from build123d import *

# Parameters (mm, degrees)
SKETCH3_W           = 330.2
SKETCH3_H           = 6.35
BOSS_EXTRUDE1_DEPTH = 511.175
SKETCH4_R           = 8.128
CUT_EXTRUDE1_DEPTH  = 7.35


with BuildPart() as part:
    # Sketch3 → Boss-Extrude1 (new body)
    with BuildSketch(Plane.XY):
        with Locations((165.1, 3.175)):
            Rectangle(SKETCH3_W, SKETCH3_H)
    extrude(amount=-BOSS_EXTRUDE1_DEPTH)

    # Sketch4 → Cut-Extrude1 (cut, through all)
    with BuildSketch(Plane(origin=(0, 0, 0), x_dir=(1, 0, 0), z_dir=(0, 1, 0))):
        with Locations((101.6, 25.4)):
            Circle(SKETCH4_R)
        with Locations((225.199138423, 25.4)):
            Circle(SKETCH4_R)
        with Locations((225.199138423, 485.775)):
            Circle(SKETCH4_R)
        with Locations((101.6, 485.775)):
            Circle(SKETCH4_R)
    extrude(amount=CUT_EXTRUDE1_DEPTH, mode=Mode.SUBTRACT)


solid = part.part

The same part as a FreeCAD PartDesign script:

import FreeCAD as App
import Part
import Sketcher
Q = App.Units.Quantity


def add_polygon(sketch, points):
    """Adds a closed chain of lines whose ends are joined by coincident constraints."""
    first, n = sketch.GeometryCount, len(points)
    for a, b in zip(points, points[1:] + points[:1]):
        sketch.addGeometry(Part.LineSegment(App.Vector(*a, 0), App.Vector(*b, 0)), False)
    for i in range(n):
        sketch.addConstraint(Sketcher.Constraint("Coincident", first + i, 2, first + (i + 1) % n, 1))

doc = App.newDocument("Part")
body = doc.addObject("PartDesign::Body", "Body")

# Sketch on XY plane
sketch1 = body.newObject("Sketcher::SketchObject", "Sketch")
sketch1.AttachmentSupport = (doc.getObject("XY_Plane"), [""])
sketch1.MapMode = "FlatFace"
add_polygon(sketch1, [(0, 6), (0, 0), (330, 0), (330, 6)])  # lines 0-3
sketch1.addConstraint(Sketcher.Constraint("Vertical", 0))
sketch1.addConstraint(Sketcher.Constraint("Horizontal", 1))
sketch1.addConstraint(Sketcher.Constraint("Vertical", 2))
sketch1.addConstraint(Sketcher.Constraint("Horizontal", 3))
sketch1.addConstraint(Sketcher.Constraint("Coincident", 0, 2, -1, 1))
sketch1.addConstraint(Sketcher.Constraint("DistanceX", 1, 1, 1, 2, Q("13 in")))
sketch1.addConstraint(Sketcher.Constraint("DistanceY", 0, 2, 0, 1, Q("0.25 in")))
pad1 = body.newObject("PartDesign::Pad", "Pad")
pad1.Profile = sketch1
pad1.Length = Q("20.125 in")
pad1.Reversed = True

# Sketch on XZ plane
sketch2 = body.newObject("Sketcher::SketchObject", "Sketch001")
sketch2.AttachmentSupport = (doc.getObject("XZ_Plane"), [""])
sketch2.MapMode = "FlatFace"
sketch2.addGeometry(Part.Circle(App.Vector(102, -25, 0), App.Vector(0, 0, 1), 8), False)
sketch2.addGeometry(Part.Circle(App.Vector(225, -25, 0), App.Vector(0, 0, 1), 8), False)
sketch2.addGeometry(Part.Circle(App.Vector(225, -486, 0), App.Vector(0, 0, 1), 8), False)
sketch2.addGeometry(Part.Circle(App.Vector(102, -486, 0), App.Vector(0, 0, 1), 8), False)
sketch2.addConstraint(Sketcher.Constraint("Equal", 0, 1))
sketch2.addConstraint(Sketcher.Constraint("Equal", 1, 2))
sketch2.addConstraint(Sketcher.Constraint("Equal", 2, 3))
sketch2.addConstraint(Sketcher.Constraint("Horizontal", 0, 3, 1, 3))
sketch2.addConstraint(Sketcher.Constraint("Horizontal", 2, 3, 3, 3))
sketch2.addConstraint(Sketcher.Constraint("Vertical", 1, 3, 2, 3))
sketch2.addConstraint(Sketcher.Constraint("Vertical", 0, 3, 3, 3))
sketch2.addConstraint(Sketcher.Constraint("Diameter", 0, Q("0.64 in")))
sketch2.addConstraint(Sketcher.Constraint("DistanceX", -1, 1, 0, 3, Q("4 in")))
sketch2.addConstraint(Sketcher.Constraint("DistanceY", 0, 3, -1, 1, Q("1 in")))
sketch2.addConstraint(Sketcher.Constraint("DistanceY", 2, 3, -1, 1, Q("19.125 in")))
sketch2.addConstraint(Sketcher.Constraint("DistanceX", -1, 1, 1, 3, 225.199138))
pocket1 = body.newObject("PartDesign::Pocket", "Pocket")
pocket1.Profile = sketch2
pocket1.Type = "ThroughAll"

doc.recompute()
